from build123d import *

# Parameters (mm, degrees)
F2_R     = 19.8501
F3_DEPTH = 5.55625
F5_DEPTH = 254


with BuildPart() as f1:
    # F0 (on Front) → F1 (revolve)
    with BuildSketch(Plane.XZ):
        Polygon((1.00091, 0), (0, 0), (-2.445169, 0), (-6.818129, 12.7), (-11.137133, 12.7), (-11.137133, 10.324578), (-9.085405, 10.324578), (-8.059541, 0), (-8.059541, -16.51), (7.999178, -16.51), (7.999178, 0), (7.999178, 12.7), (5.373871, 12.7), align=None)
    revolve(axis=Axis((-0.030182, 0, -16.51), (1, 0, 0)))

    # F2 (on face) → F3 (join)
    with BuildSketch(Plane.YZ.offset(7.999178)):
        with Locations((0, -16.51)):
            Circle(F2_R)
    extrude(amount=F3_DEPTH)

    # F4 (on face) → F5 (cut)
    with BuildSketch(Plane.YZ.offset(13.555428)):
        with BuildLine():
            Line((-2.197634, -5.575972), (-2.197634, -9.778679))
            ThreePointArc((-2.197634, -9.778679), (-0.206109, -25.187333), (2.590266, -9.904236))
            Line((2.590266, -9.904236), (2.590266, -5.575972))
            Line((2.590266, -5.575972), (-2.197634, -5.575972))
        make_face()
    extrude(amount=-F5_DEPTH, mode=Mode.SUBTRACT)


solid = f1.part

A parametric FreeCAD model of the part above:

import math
import FreeCAD as App
import Part
import Sketcher
from FreeCAD import Vector
Q = App.Units.Quantity

doc = App.newDocument("Part")
body = doc.addObject("PartDesign::Body", "Body")

# Sketch on XZ plane
sketch1 = body.newObject("Sketcher::SketchObject", "Sketch")
sketch1.AttachmentSupport = (doc.getObject("XZ_Plane"), [""])
sketch1.MapMode = "FlatFace"
sketch1.addGeometry(Part.LineSegment(Vector(1.00091, 0, 0), Vector(-2.445169, 0, 0)), False)
sketch1.addGeometry(Part.LineSegment(Vector(-2.445169, 0, 0), Vector(-6.818129, 12.7, 0)), False)
sketch1.addGeometry(Part.LineSegment(Vector(-6.818129, 12.7, 0), Vector(-11.137133, 12.7, 0)), False)
sketch1.addGeometry(Part.LineSegment(Vector(-11.137133, 12.7, 0), Vector(-11.137133, 10.324578, 0)), False)
sketch1.addGeometry(Part.LineSegment(Vector(-11.137133, 10.324578, 0), Vector(-9.085405, 10.324578, 0)), False)
sketch1.addGeometry(Part.LineSegment(Vector(-9.085405, 10.324578, 0), Vector(-8.059541, 0, 0)), False)
sketch1.addGeometry(Part.LineSegment(Vector(-8.059541, 0, 0), Vector(-8.059541, -16.51, 0)), False)
sketch1.addGeometry(Part.LineSegment(Vector(-8.059541, -16.51, 0), Vector(7.999178, -16.51, 0)), False)
sketch1.addGeometry(Part.LineSegment(Vector(7.999178, -16.51, 0), Vector(7.999178, 12.7, 0)), False)
sketch1.addGeometry(Part.LineSegment(Vector(7.999178, 12.7, 0), Vector(5.373871, 12.7, 0)), False)
sketch1.addGeometry(Part.LineSegment(Vector(5.373871, 12.7, 0), Vector(1.00091, 0, 0)), False)
sketch1.addGeometry(Part.LineSegment(Vector(-11.137133, -16.51, 0), Vector(7.999178, -16.51, 0)), True)  # axis
sketch1.addConstraint(Sketcher.Constraint("Coincident", 0, 2, 1, 1))
sketch1.addConstraint(Sketcher.Constraint("Coincident", 1, 2, 2, 1))
sketch1.addConstraint(Sketcher.Constraint("Coincident", 2, 2, 3, 1))
sketch1.addConstraint(Sketcher.Constraint("Coincident", 3, 2, 4, 1))
sketch1.addConstraint(Sketcher.Constraint("Coincident", 4, 2, 5, 1))
sketch1.addConstraint(Sketcher.Constraint("Coincident", 5, 2, 6, 1))
sketch1.addConstraint(Sketcher.Constraint("Coincident", 6, 2, 7, 1))
sketch1.addConstraint(Sketcher.Constraint("Coincident", 7, 2, 8, 1))
sketch1.addConstraint(Sketcher.Constraint("Coincident", 8, 2, 9, 1))
sketch1.addConstraint(Sketcher.Constraint("Coincident", 9, 2, 10, 1))
sketch1.addConstraint(Sketcher.Constraint("Coincident", 10, 2, 0, 1))
sketch1.addConstraint(Sketcher.Constraint("Horizontal", 0))
sketch1.addConstraint(Sketcher.Constraint("Horizontal", 2))
sketch1.addConstraint(Sketcher.Constraint("Vertical", 3))
sketch1.addConstraint(Sketcher.Constraint("Horizontal", 4))
sketch1.addConstraint(Sketcher.Constraint("Vertical", 6))
sketch1.addConstraint(Sketcher.Constraint("Horizontal", 7))
sketch1.addConstraint(Sketcher.Constraint("Vertical", 8))
sketch1.addConstraint(Sketcher.Constraint("Horizontal", 9))
sketch1.addConstraint(Sketcher.Constraint("Horizontal", 11))
sketch1.addConstraint(Sketcher.Constraint("Coincident", 11, 2, 7, 2))
sketch1.addConstraint(Sketcher.Constraint("PointOnObject", 0, 2, -1))
sketch1.addConstraint(Sketcher.Constraint("PointOnObject", 5, 2, -1))
sketch1.addConstraint(Sketcher.Constraint("Horizontal", 2, 2, 8, 2))
sketch1.addConstraint(Sketcher.Constraint("Vertical", 3, 2, 11, 1))
sketch1.addConstraint(Sketcher.Constraint("Equal", 1, 10))
sketch1.addConstraint(Sketcher.Constraint("Angle", 1, Q("108.999997 deg")))
sketch1.addConstraint(Sketcher.Constraint("DistanceY", 6, 2, 6, 1, Q("0.65 in")))
sketch1.addConstraint(Sketcher.Constraint("DistanceY", 8, 1, 8, 2, Q("1.15 in")))
sketch1.addConstraint(Sketcher.Constraint("DistanceX", 1, 2, 9, 2, Q("0.48 in")))
sketch1.addConstraint(Sketcher.Constraint("DistanceX", 4, 1, 4, 2, Q("2.051728 mm")))
sketch1.addConstraint(Sketcher.Constraint("DistanceX", 7, 1, 7, 2, Q("16.058719 mm")))
sketch1.addConstraint(Sketcher.Constraint("DistanceX", 11, 1, 11, 2, Q("19.136311 mm")))
sketch1.addConstraint(Sketcher.Constraint("DistanceY", 3, 2, 3, 1, Q("2.375422 mm")))
sketch1.addConstraint(Sketcher.Constraint("DistanceX", 2, 2, 2, 1, Q("4.319004 mm")))
sketch1.addConstraint(Sketcher.Constraint("DistanceX", 0, 2, -1, 1, Q("2.445169 mm")))
revolution = body.newObject("PartDesign::Revolution", "Revolution")
revolution.Profile = sketch1
revolution.ReferenceAxis = (sketch1, ["Axis0"])
revolution.Angle = 360

# Sketch on YZ plane
sketch2 = body.newObject("Sketcher::SketchObject", "Sketch001")
sketch2.AttachmentSupport = (doc.getObject("YZ_Plane"), [""])
sketch2.MapMode = "FlatFace"
sketch2.AttachmentOffset = App.Placement(Vector(0, 0, 7.999178), App.Rotation())
sketch2.addGeometry(Part.Circle(Vector(0, -16.51, 0), Vector(0, 0, 1), 19.8501), False)
sketch2.addConstraint(Sketcher.Constraint("PointOnObject", 0, 3, -2))
sketch2.addConstraint(Sketcher.Constraint("Diameter", 0, Q("1.563 in")))
sketch2.addConstraint(Sketcher.Constraint("DistanceY", 0, 3, -1, 1, Q("0.65 in")))
pad1 = body.newObject("PartDesign::Pad", "Pad")
pad1.Profile = sketch2
pad1.Length = Q("0.21875 in")

# Sketch on YZ plane
sketch3 = body.newObject("Sketcher::SketchObject", "Sketch002")
sketch3.AttachmentSupport = (doc.getObject("YZ_Plane"), [""])
sketch3.MapMode = "FlatFace"
sketch3.AttachmentOffset = App.Placement(Vector(0, 0, 13.555428), App.Rotation())
sketch3.addGeometry(Part.LineSegment(Vector(-2.197634, -5.575972, 0), Vector(-2.197634, -9.778679, 0)), False)
sketch3.addGeometry(Part.ArcOfCircle(Part.Circle(Vector(-0.000001, -17.327668, 0), Vector(0, 0, 1), 7.862367), math.radians(106.231135), math.radians(430.764526)), False)
sketch3.addGeometry(Part.LineSegment(Vector(2.590266, -9.904236, 0), Vector(2.590266, -5.575972, 0)), False)
sketch3.addGeometry(Part.LineSegment(Vector(2.590266, -5.575972, 0), Vector(-2.197634, -5.575972, 0)), False)
sketch3.addConstraint(Sketcher.Constraint("Coincident", 0, 2, 1, 1))
sketch3.addConstraint(Sketcher.Constraint("Coincident", 1, 2, 2, 1))
sketch3.addConstraint(Sketcher.Constraint("Coincident", 2, 2, 3, 1))
sketch3.addConstraint(Sketcher.Constraint("Coincident", 3, 2, 0, 1))
sketch3.addConstraint(Sketcher.Constraint("Vertical", 0))
sketch3.addConstraint(Sketcher.Constraint("Vertical", 2))
sketch3.addConstraint(Sketcher.Constraint("Horizontal", 3))
sketch3.addConstraint(Sketcher.Constraint("PointOnObject", 1, 3, -2))
sketch3.addConstraint(Sketcher.Constraint("DistanceX", 3, 2, 3, 1, Q("0.1885 in")))
sketch3.addConstraint(Sketcher.Constraint("Radius", 1, Q("7.862367 mm")))
sketch3.addConstraint(Sketcher.Constraint("DistanceY", 0, 2, 0, 1, Q("4.202707 mm")))
sketch3.addConstraint(Sketcher.Constraint("DistanceY", 2, 1, 2, 2, Q("4.328264 mm")))
sketch3.addConstraint(Sketcher.Constraint("DistanceY", 0, 2, -1, 1, Q("9.778679 mm")))
pocket1 = body.newObject("PartDesign::Pocket", "Pocket")
pocket1.Profile = sketch3
pocket1.Length = Q("10 in")

doc.recompute()
